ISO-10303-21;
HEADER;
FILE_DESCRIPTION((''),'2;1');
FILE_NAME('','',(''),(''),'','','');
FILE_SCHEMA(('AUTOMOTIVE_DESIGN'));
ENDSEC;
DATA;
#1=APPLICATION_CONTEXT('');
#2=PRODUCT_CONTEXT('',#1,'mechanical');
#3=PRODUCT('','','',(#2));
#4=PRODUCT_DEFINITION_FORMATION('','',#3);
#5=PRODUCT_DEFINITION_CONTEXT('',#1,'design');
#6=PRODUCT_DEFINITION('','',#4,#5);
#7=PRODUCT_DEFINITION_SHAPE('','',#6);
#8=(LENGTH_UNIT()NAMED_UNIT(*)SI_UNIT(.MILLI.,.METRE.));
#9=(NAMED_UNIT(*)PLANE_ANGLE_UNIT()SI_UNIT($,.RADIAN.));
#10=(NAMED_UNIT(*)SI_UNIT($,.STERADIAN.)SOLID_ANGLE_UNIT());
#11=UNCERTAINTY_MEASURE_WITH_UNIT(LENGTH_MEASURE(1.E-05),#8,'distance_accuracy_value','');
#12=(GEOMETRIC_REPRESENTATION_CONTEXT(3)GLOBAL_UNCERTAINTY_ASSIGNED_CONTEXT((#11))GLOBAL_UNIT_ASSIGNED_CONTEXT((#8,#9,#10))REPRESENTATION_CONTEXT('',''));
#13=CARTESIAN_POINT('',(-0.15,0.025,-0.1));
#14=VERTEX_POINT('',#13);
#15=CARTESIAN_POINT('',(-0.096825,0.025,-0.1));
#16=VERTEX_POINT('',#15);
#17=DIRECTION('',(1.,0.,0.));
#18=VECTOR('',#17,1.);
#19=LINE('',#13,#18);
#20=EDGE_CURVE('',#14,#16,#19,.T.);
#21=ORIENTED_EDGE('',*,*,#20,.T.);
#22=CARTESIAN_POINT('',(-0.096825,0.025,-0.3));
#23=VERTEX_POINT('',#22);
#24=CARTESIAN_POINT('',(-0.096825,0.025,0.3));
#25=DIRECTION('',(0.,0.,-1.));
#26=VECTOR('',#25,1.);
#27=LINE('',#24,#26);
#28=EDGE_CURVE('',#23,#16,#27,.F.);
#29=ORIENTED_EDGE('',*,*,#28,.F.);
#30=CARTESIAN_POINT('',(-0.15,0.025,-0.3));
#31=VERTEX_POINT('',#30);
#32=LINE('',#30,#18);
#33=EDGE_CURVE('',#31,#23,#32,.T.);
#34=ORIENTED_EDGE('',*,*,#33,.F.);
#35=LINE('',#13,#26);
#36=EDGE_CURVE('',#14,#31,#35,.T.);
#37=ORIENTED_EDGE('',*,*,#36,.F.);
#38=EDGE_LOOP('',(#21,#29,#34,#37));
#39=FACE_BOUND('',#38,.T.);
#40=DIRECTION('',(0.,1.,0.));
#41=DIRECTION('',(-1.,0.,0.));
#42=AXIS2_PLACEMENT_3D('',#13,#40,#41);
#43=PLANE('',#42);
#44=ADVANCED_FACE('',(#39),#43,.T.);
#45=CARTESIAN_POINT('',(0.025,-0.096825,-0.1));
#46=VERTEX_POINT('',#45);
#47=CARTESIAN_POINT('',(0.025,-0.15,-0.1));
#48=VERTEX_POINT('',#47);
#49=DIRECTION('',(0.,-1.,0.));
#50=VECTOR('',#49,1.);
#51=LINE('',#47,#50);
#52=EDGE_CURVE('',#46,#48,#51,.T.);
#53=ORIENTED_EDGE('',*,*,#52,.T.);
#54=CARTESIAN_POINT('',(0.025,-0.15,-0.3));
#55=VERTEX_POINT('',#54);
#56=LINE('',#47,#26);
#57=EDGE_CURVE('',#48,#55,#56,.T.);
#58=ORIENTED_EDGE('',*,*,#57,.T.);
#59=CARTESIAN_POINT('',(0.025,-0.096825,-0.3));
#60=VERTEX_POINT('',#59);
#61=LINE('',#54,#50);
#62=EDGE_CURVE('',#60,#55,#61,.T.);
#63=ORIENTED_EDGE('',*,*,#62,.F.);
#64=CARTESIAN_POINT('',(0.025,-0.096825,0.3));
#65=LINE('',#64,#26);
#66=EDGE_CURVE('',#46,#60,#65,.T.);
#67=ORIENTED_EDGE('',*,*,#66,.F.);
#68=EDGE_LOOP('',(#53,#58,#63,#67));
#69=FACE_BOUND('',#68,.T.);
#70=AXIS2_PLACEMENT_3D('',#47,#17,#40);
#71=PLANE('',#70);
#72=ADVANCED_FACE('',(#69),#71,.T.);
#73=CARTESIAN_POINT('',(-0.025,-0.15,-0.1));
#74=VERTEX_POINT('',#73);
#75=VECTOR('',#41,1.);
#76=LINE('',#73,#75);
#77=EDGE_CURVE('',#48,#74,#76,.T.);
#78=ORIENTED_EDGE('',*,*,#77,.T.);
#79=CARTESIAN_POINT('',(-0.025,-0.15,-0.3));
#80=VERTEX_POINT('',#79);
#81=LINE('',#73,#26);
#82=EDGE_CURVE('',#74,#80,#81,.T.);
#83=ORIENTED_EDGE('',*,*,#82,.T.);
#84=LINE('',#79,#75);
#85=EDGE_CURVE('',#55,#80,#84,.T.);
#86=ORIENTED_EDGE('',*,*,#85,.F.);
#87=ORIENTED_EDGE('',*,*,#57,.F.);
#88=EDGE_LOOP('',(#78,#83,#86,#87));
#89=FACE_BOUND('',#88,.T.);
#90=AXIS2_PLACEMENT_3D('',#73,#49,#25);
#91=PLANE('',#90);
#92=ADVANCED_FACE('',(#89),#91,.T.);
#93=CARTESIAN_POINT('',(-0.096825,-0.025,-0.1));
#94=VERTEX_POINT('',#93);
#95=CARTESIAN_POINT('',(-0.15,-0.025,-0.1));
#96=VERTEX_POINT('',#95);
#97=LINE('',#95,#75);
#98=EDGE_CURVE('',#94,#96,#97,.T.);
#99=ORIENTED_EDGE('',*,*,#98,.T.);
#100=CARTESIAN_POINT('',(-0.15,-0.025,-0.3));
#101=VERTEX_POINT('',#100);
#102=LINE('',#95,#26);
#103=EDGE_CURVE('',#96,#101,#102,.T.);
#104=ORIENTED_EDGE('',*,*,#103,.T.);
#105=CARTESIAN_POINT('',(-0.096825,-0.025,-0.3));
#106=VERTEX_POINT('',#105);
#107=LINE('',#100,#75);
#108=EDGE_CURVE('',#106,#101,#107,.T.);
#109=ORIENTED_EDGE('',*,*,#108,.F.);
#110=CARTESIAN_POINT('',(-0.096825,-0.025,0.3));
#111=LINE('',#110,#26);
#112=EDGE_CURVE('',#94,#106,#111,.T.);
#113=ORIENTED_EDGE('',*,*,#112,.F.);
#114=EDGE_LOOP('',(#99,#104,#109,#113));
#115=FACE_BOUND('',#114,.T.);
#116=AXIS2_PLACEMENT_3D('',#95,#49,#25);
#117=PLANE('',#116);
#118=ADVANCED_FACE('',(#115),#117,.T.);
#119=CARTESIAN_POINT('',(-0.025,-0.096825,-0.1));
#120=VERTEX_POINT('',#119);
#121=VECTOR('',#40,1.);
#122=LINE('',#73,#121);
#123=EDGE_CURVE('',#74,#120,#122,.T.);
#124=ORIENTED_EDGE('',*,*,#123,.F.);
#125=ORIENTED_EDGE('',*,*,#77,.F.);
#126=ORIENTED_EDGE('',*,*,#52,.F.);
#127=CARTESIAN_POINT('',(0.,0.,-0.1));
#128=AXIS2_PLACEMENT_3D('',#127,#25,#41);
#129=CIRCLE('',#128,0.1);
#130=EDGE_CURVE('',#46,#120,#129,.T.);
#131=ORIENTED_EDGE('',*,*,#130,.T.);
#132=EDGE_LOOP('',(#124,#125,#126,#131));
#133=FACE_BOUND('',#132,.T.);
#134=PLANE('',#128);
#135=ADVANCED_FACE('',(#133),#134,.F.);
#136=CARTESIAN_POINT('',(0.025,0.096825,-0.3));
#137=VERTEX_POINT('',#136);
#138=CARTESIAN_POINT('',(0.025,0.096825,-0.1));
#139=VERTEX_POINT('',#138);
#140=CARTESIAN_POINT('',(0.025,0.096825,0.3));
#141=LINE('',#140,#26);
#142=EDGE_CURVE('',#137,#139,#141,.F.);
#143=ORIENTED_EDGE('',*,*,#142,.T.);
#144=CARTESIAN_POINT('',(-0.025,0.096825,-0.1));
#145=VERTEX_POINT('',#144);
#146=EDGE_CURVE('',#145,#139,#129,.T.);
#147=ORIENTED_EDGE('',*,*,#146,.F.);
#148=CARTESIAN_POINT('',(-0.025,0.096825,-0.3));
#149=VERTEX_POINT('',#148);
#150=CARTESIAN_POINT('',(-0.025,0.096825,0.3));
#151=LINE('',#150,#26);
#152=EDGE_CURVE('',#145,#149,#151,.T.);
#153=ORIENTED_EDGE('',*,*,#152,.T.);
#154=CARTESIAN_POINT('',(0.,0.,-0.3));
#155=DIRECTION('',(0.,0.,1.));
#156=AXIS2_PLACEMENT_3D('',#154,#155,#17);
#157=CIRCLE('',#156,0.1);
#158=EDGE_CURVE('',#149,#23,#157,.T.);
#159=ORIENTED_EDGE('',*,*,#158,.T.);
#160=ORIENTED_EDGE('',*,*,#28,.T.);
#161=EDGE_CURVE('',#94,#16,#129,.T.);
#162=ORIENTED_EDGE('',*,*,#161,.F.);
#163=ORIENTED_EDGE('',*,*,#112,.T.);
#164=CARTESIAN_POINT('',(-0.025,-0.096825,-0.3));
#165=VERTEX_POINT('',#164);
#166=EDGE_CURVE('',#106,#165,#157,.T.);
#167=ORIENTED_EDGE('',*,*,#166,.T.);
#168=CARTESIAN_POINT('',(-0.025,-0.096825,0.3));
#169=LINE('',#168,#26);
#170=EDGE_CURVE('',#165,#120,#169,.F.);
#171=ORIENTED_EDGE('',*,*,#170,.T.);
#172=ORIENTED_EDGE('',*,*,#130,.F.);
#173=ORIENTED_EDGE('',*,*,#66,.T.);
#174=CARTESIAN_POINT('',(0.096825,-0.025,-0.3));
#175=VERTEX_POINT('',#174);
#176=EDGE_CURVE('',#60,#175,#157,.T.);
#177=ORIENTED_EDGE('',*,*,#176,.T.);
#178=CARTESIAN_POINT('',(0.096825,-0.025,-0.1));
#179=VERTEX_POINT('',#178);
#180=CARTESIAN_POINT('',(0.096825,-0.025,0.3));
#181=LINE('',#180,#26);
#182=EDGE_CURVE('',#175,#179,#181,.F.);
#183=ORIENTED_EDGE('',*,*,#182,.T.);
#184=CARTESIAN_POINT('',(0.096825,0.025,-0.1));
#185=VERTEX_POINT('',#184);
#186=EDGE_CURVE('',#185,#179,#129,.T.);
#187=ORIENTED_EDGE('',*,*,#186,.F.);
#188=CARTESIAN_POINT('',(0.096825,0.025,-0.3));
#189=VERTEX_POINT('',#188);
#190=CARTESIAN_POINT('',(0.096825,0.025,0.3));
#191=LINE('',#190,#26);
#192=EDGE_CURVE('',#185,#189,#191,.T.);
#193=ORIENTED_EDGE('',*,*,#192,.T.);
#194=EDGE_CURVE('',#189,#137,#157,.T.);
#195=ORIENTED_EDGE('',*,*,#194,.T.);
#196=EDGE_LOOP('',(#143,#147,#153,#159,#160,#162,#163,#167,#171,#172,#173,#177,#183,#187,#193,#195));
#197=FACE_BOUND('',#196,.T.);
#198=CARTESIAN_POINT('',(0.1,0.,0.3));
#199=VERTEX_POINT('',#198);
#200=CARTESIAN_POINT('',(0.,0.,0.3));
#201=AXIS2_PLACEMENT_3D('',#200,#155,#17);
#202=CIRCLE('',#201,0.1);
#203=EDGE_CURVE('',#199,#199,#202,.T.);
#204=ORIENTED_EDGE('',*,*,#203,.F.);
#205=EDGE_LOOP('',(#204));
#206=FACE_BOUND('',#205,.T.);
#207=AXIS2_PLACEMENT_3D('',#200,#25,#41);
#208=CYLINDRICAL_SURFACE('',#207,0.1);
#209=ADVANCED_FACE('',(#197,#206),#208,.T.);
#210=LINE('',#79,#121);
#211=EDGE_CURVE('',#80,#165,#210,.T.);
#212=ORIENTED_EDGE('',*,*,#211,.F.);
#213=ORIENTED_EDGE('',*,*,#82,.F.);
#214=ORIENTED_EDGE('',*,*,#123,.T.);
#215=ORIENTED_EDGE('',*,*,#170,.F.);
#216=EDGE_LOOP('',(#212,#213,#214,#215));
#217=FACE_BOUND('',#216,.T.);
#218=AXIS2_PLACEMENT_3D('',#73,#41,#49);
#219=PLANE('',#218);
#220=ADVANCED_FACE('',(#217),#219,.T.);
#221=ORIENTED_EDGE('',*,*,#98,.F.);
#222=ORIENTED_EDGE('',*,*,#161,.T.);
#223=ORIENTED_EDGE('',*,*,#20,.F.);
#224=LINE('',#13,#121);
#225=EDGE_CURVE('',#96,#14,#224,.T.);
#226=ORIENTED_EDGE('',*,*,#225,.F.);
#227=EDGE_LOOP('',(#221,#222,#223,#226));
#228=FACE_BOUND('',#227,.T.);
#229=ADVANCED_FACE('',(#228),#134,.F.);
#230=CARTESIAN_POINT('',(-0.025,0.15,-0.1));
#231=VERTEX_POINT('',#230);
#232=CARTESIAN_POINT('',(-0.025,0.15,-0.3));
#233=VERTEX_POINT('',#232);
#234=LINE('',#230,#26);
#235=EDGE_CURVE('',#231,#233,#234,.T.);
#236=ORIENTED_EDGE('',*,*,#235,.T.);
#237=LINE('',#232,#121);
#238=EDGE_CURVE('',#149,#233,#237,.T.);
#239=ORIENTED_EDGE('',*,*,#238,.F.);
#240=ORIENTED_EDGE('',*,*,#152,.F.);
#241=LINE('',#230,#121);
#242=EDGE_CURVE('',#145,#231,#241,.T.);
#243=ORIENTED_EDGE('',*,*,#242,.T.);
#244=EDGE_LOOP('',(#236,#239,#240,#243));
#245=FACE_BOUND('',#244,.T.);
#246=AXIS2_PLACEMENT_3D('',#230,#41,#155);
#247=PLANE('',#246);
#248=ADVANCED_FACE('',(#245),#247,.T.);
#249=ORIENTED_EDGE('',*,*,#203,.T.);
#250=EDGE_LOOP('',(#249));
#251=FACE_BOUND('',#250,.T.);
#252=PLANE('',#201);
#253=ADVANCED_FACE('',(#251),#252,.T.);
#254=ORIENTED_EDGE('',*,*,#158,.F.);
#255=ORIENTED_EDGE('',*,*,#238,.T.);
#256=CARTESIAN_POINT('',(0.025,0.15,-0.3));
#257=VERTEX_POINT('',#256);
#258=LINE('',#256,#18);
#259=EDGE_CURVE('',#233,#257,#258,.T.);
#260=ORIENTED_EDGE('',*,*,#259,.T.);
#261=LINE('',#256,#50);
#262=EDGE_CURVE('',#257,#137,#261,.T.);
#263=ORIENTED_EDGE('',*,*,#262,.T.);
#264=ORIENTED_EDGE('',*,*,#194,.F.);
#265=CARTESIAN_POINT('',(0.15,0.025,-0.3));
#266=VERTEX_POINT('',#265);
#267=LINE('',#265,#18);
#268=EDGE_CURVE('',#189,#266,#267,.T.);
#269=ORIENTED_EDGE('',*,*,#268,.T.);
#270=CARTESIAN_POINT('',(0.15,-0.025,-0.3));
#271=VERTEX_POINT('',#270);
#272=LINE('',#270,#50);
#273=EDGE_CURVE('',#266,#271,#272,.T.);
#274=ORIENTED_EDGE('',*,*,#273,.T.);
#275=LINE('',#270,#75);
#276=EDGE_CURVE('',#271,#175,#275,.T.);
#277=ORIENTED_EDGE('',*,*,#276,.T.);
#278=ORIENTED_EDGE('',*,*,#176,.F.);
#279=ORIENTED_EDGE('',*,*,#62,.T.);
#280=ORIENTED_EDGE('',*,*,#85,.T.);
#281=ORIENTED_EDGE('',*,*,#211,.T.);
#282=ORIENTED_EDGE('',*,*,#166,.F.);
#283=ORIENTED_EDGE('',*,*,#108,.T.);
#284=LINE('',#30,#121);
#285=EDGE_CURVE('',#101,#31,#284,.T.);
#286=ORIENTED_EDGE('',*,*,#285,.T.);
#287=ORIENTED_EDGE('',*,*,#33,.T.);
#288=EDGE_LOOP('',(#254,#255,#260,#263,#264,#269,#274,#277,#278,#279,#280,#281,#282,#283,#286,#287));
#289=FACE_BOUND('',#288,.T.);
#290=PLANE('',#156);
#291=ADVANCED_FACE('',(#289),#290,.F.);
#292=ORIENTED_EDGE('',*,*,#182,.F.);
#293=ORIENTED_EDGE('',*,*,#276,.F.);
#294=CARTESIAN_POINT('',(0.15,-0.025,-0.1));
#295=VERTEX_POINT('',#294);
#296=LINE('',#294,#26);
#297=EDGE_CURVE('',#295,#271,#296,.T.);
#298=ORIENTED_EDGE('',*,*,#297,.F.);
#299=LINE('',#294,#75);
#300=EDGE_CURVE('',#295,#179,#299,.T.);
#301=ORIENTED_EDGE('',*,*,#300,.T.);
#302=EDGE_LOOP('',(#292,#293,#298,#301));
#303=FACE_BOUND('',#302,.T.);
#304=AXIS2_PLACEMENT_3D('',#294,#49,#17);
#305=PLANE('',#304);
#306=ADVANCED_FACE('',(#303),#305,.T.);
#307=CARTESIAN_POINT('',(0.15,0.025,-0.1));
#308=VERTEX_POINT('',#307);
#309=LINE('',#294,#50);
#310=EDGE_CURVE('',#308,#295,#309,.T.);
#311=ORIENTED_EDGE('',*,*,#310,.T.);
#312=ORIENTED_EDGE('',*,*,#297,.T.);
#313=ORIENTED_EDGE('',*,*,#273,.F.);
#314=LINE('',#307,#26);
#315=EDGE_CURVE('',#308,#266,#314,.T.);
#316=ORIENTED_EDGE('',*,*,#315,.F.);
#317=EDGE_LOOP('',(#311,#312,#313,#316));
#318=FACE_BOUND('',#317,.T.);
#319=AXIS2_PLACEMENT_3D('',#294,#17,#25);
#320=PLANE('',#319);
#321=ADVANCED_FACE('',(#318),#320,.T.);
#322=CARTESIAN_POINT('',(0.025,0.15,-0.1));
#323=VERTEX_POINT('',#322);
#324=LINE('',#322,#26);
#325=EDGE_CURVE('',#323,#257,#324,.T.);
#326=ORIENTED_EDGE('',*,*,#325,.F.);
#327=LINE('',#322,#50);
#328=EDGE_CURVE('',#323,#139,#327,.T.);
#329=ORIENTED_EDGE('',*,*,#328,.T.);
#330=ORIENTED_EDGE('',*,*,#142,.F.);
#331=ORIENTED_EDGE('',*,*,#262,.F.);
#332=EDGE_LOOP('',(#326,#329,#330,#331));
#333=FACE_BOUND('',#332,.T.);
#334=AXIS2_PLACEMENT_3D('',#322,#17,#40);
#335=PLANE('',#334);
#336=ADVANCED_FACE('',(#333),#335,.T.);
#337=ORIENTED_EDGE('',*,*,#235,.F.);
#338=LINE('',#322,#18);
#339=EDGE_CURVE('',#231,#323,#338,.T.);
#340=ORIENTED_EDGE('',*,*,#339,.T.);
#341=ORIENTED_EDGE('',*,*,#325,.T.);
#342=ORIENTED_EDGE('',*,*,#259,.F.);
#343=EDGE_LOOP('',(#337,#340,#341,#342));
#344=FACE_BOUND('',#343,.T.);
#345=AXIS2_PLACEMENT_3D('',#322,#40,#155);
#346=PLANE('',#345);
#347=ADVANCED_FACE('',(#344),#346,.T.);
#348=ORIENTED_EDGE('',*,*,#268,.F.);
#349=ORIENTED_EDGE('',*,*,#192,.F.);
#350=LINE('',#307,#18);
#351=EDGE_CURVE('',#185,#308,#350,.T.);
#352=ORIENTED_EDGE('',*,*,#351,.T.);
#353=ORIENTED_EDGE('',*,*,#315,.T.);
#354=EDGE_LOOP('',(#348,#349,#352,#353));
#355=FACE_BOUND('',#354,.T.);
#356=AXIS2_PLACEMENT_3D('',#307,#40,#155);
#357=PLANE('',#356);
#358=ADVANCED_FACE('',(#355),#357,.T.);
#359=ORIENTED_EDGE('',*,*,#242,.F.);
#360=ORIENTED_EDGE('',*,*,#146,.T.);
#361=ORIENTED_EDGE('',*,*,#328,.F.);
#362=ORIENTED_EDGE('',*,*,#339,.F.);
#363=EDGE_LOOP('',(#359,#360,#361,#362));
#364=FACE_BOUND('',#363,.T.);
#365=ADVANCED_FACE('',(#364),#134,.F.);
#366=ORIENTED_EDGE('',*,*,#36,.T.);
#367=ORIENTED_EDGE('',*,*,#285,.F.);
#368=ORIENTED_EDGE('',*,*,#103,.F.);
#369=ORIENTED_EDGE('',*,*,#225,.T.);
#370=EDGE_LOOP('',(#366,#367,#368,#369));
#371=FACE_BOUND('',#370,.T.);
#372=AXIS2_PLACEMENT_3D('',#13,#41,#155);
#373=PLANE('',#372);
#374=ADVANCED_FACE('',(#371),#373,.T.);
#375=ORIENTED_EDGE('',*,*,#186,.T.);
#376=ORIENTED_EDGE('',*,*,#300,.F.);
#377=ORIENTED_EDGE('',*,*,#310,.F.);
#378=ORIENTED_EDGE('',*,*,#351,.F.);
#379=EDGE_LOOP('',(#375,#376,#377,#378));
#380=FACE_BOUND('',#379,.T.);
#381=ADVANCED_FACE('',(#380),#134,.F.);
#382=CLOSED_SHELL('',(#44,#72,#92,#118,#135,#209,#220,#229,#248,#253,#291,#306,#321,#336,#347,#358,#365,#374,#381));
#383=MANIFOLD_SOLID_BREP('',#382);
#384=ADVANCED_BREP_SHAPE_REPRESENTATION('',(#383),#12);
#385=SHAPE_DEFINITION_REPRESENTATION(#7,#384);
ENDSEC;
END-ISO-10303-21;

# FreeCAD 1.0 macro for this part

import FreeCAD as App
import Part
import Sketcher

V = App.Vector
Q = App.Units.Quantity


def add_polygon(sketch, points):
    """Adds a closed chain of lines whose ends are joined by coincident constraints."""
    first, n = sketch.GeometryCount, len(points)
    for a, b in zip(points, points[1:] + points[:1]):
        sketch.addGeometry(Part.LineSegment(App.Vector(*a, 0), App.Vector(*b, 0)), False)
    for i in range(n):
        sketch.addConstraint(Sketcher.Constraint("Coincident", first + i, 2, first + (i + 1) % n, 1))

doc = App.newDocument("Part")
params = doc.addObject("Spreadsheet::Sheet", "Params")
for row, (alias, value) in enumerate([
    ("sketch1_diameter", "0.2 mm"),
    ("pad1_length", "0.6 mm"),
    ("sketch2_width", "0.1 mm"),
    ("sketch2_width2", "0.05 mm"),
    ("pad2_length", "0.2 mm"),
], start=1):
    params.set(f"A{row}", alias)
    params.set(f"B{row}", "=" + value)
    params.setAlias(f"B{row}", alias)

body = doc.addObject("PartDesign::Body", "Body")

# Sketch on XY plane
sketch1 = body.newObject("Sketcher::SketchObject", "Sketch")
sketch1.AttachmentSupport = (doc.getObject("XY_Plane"), [""])
sketch1.MapMode = "FlatFace"
sketch1.addGeometry(Part.Circle(V(0, 0, 0), V(0, 0, 1), 0.1), False)
sketch1.addConstraint([
    Sketcher.Constraint("Coincident", 0, 3, -1, 1),
    Sketcher.Constraint("Diameter", 0, Q("0.2 mm")),
])
sketch1.setExpression("Constraints[1]", "Params.sketch1_diameter")
pad1 = body.newObject("PartDesign::Pad", "Pad")
pad1.Profile = sketch1
pad1.setExpression("Length", "Params.pad1_length")
pad1.Midplane = True

# Sketch on XY plane
sketch2 = body.newObject("Sketcher::SketchObject", "Sketch001")
sketch2.AttachmentSupport = (doc.getObject("XY_Plane"), [""])
sketch2.MapMode = "FlatFace"
sketch2.AttachmentOffset = App.Placement(V(0, 0, -0.3), App.Rotation())
add_polygon(sketch2, [(0.15, 0.03), (0.15, -0.03), (0.05, -0.03), (0.05, 0.03)])  # lines 0-3
add_polygon(sketch2, [(0.03, 0.15), (0.03, 0.05), (-0.03, 0.05), (-0.03, 0.15)])  # lines 4-7
add_polygon(sketch2, [(-0.05, 0.03), (-0.05, -0.03), (-0.15, -0.03), (-0.15, 0.03)])  # lines 8-11
add_polygon(sketch2, [(0.03, -0.05), (0.03, -0.15), (-0.03, -0.15), (-0.03, -0.05)])  # lines 12-15
sketch2.addConstraint([
    Sketcher.Constraint("Vertical", 0),
    Sketcher.Constraint("Horizontal", 1),
    Sketcher.Constraint("Vertical", 2),
    Sketcher.Constraint("Horizontal", 3),
    Sketcher.Constraint("Vertical", 4),
    Sketcher.Constraint("Horizontal", 5),
    Sketcher.Constraint("Vertical", 6),
    Sketcher.Constraint("Horizontal", 7),
    Sketcher.Constraint("Vertical", 8),
    Sketcher.Constraint("Horizontal", 9),
    Sketcher.Constraint("Vertical", 10),
    Sketcher.Constraint("Horizontal", 11),
    Sketcher.Constraint("Vertical", 12),
    Sketcher.Constraint("Horizontal", 13),
    Sketcher.Constraint("Vertical", 14),
    Sketcher.Constraint("Horizontal", 15),
    Sketcher.Constraint("Symmetric", 2, 2, 8, 2, -1, 1),
    Sketcher.Constraint("Symmetric", 0, 2, 10, 2, -1, 1),
    Sketcher.Constraint("Symmetric", 6, 2, 12, 2, -1, 1),
    Sketcher.Constraint("Symmetric", 4, 2, 14, 2, -1, 1),
    Sketcher.Constraint("Horizontal", 1, 2, 8, 2),
    Sketcher.Constraint("Vertical", 7, 2, 12, 2),
    Sketcher.Constraint("Equal", 15, 0),
    Sketcher.Constraint("Equal", 11, 4),
    Sketcher.Constraint("DistanceX", 1, 2, 1, 1, Q("0.1 mm")),
    Sketcher.Constraint("DistanceX", 5, 2, 5, 1, Q("0.05 mm")),
    Sketcher.Constraint("DistanceX", 8, 2, 1, 2, Q("0.1 mm")),
    Sketcher.Constraint("DistanceY", 14, 2, 5, 2, Q("0.1 mm")),
])
sketch2.setExpression("Constraints[40]", "Params.sketch2_width")
sketch2.setExpression("Constraints[41]", "Params.sketch2_width2")
pad2 = body.newObject("PartDesign::Pad", "Pad001")
pad2.Profile = sketch2
pad2.setExpression("Length", "Params.pad2_length")

doc.recompute()
